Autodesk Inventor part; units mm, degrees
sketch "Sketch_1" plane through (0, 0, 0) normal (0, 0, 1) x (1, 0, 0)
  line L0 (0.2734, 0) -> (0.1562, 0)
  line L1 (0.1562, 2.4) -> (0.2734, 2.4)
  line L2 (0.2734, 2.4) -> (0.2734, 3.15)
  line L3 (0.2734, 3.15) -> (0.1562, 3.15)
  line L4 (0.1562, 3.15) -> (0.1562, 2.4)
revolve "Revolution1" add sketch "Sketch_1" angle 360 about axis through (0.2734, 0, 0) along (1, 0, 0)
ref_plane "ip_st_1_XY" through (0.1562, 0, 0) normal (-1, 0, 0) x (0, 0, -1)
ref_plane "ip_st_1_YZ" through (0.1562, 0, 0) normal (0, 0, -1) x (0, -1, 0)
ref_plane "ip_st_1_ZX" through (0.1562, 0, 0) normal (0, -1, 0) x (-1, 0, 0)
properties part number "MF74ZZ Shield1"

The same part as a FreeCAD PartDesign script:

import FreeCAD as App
import Part
import Sketcher
from FreeCAD import Vector
Q = App.Units.Quantity


def add_polygon(sketch, points):
    """Adds a closed chain of lines whose ends are joined by coincident constraints."""
    first, n = sketch.GeometryCount, len(points)
    for a, b in zip(points, points[1:] + points[:1]):
        sketch.addGeometry(Part.LineSegment(App.Vector(*a, 0), App.Vector(*b, 0)), False)
    for i in range(n):
        sketch.addConstraint(Sketcher.Constraint("Coincident", first + i, 2, first + (i + 1) % n, 1))

doc = App.newDocument("Part")
body = doc.addObject("PartDesign::Body", "Body")

# Sketch on XY plane
sketch1 = body.newObject("Sketcher::SketchObject", "Sketch")
sketch1.AttachmentSupport = (doc.getObject("XY_Plane"), [""])
sketch1.MapMode = "FlatFace"
add_polygon(sketch1, [(0.1562, 3.15), (0.1562, 2.4), (0.2734, 2.4), (0.2734, 3.15)])  # lines 0-3
sketch1.addConstraint([
    Sketcher.Constraint("Vertical", 0),
    Sketcher.Constraint("Horizontal", 1),
    Sketcher.Constraint("Vertical", 2),
    Sketcher.Constraint("Horizontal", 3),
    Sketcher.Constraint("DistanceY", 0, 2, 0, 1, Q("0.75 mm")),
    Sketcher.Constraint("DistanceY", -1, 1, 0, 2, Q("2.4 mm")),
    Sketcher.Constraint("DistanceX", 1, 1, 1, 2, Q("0.1172 mm")),
    Sketcher.Constraint("DistanceX", -1, 1, 0, 2, Q("0.1562 mm")),
])
revolution = body.newObject("PartDesign::Revolution", "Revolution")
revolution.Profile = sketch1
revolution.ReferenceAxis = (sketch1, ["H_Axis"])
revolution.Angle = 360

doc.recompute()
